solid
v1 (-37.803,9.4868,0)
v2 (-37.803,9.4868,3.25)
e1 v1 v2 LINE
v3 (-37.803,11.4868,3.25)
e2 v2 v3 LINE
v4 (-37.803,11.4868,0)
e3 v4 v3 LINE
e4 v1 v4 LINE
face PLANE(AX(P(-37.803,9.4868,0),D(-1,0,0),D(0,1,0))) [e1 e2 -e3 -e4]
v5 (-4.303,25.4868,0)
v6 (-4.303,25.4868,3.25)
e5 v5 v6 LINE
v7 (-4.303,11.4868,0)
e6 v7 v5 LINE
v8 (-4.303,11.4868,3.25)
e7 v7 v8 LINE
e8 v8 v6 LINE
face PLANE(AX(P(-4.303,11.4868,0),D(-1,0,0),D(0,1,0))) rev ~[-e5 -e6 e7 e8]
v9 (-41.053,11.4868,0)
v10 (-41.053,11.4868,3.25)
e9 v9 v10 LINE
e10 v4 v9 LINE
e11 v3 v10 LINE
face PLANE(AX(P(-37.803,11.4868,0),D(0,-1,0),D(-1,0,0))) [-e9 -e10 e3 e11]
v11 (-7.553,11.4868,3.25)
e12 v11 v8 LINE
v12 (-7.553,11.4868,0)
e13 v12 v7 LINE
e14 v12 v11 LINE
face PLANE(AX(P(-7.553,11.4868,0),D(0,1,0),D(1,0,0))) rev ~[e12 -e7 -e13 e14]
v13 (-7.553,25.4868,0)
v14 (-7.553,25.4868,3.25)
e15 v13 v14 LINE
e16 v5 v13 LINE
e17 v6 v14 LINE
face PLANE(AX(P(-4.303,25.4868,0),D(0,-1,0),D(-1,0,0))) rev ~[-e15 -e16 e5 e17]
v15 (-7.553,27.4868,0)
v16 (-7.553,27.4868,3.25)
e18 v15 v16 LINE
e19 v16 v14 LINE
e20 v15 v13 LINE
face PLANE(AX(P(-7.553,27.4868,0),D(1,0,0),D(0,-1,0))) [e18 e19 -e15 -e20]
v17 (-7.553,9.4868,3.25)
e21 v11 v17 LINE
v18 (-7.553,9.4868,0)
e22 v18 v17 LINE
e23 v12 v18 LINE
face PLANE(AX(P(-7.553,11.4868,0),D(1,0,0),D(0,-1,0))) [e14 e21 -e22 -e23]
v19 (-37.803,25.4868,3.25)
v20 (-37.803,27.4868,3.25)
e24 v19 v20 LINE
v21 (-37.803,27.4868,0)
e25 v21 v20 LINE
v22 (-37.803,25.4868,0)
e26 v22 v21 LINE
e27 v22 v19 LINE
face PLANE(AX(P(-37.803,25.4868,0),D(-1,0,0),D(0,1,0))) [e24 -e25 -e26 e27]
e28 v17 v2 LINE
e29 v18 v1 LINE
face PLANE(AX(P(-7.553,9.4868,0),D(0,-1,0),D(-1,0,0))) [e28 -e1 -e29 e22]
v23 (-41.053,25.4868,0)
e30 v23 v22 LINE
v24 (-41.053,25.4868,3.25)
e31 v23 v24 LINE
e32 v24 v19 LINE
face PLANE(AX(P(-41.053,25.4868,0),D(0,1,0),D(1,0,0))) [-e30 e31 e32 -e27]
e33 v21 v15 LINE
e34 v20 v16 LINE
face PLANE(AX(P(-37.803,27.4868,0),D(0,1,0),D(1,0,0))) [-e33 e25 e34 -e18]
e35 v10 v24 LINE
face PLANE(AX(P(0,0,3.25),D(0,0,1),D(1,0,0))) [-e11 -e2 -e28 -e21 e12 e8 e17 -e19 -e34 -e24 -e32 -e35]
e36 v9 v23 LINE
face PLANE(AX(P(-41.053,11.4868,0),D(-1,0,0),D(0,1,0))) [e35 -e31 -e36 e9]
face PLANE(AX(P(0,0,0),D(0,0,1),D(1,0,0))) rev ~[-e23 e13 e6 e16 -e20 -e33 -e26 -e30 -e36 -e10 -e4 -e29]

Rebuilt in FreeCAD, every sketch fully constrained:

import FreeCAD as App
import Part
import Sketcher
from FreeCAD import Vector
Q = App.Units.Quantity


def add_polygon(sketch, points):
    """Adds a closed chain of lines whose ends are joined by coincident constraints."""
    first, n = sketch.GeometryCount, len(points)
    for a, b in zip(points, points[1:] + points[:1]):
        sketch.addGeometry(Part.LineSegment(App.Vector(*a, 0), App.Vector(*b, 0)), False)
    for i in range(n):
        sketch.addConstraint(Sketcher.Constraint("Coincident", first + i, 2, first + (i + 1) % n, 1))

doc = App.newDocument("Part")
body = doc.addObject("PartDesign::Body", "Body")

# Sketch on XY plane
sketch1 = doc.addObject("Sketcher::SketchObject", "Sketch")
body.addObject(sketch1)
sketch1.AttachmentSupport = (doc.XY_Plane, [""])
sketch1.MapMode = "FlatFace"
add_polygon(sketch1, [(-7.6, 27.5), (-37.8, 27.5), (-37.8, 25.5), (-41.1, 25.5), (-41.1, 11.5), (-37.8, 11.5), (-37.8, 9.5), (-7.6, 9.5), (-7.6, 11.5), (-4.3, 11.5), (-4.3, 25.5), (-7.6, 25.5)])  # lines 0-11
sketch1.addConstraint(Sketcher.Constraint("Horizontal", 0))
sketch1.addConstraint(Sketcher.Constraint("Vertical", 1))
sketch1.addConstraint(Sketcher.Constraint("Horizontal", 2))
sketch1.addConstraint(Sketcher.Constraint("Vertical", 3))
sketch1.addConstraint(Sketcher.Constraint("Horizontal", 4))
sketch1.addConstraint(Sketcher.Constraint("Vertical", 5))
sketch1.addConstraint(Sketcher.Constraint("Horizontal", 6))
sketch1.addConstraint(Sketcher.Constraint("Vertical", 7))
sketch1.addConstraint(Sketcher.Constraint("Horizontal", 8))
sketch1.addConstraint(Sketcher.Constraint("Vertical", 9))
sketch1.addConstraint(Sketcher.Constraint("Horizontal", 10))
sketch1.addConstraint(Sketcher.Constraint("Vertical", 11))
sketch1.addConstraint(Sketcher.Constraint("Horizontal", 4, 2, 7, 2))
sketch1.addConstraint(Sketcher.Constraint("Horizontal", 2, 2, 9, 2))
sketch1.addConstraint(Sketcher.Constraint("Vertical", 1, 2, 4, 2))
sketch1.addConstraint(Sketcher.Constraint("Vertical", 7, 2, 10, 2))
sketch1.addConstraint(Sketcher.Constraint("Equal", 4, 8))
sketch1.addConstraint(Sketcher.Constraint("Equal", 1, 5))
sketch1.addConstraint(Sketcher.Constraint("DistanceY", 3, 2, 3, 1, Q("14 mm")))
sketch1.addConstraint(Sketcher.Constraint("DistanceY", 5, 2, 0, 2, Q("18 mm")))
sketch1.addConstraint(Sketcher.Constraint("DistanceX", 0, 2, 0, 1, Q("30.25 mm")))
sketch1.addConstraint(Sketcher.Constraint("DistanceX", 2, 2, 2, 1, Q("3.25 mm")))
sketch1.addConstraint(Sketcher.Constraint("DistanceX", 0, 2, -1, 1, Q("37.803 mm")))
sketch1.addConstraint(Sketcher.Constraint("DistanceY", -1, 1, 0, 2, Q("27.4868 mm")))
pad1 = doc.addObject("PartDesign::Pad", "Pad")
body.addObject(pad1)
pad1.Profile = sketch1
pad1.Length = 3.25

doc.recompute()
